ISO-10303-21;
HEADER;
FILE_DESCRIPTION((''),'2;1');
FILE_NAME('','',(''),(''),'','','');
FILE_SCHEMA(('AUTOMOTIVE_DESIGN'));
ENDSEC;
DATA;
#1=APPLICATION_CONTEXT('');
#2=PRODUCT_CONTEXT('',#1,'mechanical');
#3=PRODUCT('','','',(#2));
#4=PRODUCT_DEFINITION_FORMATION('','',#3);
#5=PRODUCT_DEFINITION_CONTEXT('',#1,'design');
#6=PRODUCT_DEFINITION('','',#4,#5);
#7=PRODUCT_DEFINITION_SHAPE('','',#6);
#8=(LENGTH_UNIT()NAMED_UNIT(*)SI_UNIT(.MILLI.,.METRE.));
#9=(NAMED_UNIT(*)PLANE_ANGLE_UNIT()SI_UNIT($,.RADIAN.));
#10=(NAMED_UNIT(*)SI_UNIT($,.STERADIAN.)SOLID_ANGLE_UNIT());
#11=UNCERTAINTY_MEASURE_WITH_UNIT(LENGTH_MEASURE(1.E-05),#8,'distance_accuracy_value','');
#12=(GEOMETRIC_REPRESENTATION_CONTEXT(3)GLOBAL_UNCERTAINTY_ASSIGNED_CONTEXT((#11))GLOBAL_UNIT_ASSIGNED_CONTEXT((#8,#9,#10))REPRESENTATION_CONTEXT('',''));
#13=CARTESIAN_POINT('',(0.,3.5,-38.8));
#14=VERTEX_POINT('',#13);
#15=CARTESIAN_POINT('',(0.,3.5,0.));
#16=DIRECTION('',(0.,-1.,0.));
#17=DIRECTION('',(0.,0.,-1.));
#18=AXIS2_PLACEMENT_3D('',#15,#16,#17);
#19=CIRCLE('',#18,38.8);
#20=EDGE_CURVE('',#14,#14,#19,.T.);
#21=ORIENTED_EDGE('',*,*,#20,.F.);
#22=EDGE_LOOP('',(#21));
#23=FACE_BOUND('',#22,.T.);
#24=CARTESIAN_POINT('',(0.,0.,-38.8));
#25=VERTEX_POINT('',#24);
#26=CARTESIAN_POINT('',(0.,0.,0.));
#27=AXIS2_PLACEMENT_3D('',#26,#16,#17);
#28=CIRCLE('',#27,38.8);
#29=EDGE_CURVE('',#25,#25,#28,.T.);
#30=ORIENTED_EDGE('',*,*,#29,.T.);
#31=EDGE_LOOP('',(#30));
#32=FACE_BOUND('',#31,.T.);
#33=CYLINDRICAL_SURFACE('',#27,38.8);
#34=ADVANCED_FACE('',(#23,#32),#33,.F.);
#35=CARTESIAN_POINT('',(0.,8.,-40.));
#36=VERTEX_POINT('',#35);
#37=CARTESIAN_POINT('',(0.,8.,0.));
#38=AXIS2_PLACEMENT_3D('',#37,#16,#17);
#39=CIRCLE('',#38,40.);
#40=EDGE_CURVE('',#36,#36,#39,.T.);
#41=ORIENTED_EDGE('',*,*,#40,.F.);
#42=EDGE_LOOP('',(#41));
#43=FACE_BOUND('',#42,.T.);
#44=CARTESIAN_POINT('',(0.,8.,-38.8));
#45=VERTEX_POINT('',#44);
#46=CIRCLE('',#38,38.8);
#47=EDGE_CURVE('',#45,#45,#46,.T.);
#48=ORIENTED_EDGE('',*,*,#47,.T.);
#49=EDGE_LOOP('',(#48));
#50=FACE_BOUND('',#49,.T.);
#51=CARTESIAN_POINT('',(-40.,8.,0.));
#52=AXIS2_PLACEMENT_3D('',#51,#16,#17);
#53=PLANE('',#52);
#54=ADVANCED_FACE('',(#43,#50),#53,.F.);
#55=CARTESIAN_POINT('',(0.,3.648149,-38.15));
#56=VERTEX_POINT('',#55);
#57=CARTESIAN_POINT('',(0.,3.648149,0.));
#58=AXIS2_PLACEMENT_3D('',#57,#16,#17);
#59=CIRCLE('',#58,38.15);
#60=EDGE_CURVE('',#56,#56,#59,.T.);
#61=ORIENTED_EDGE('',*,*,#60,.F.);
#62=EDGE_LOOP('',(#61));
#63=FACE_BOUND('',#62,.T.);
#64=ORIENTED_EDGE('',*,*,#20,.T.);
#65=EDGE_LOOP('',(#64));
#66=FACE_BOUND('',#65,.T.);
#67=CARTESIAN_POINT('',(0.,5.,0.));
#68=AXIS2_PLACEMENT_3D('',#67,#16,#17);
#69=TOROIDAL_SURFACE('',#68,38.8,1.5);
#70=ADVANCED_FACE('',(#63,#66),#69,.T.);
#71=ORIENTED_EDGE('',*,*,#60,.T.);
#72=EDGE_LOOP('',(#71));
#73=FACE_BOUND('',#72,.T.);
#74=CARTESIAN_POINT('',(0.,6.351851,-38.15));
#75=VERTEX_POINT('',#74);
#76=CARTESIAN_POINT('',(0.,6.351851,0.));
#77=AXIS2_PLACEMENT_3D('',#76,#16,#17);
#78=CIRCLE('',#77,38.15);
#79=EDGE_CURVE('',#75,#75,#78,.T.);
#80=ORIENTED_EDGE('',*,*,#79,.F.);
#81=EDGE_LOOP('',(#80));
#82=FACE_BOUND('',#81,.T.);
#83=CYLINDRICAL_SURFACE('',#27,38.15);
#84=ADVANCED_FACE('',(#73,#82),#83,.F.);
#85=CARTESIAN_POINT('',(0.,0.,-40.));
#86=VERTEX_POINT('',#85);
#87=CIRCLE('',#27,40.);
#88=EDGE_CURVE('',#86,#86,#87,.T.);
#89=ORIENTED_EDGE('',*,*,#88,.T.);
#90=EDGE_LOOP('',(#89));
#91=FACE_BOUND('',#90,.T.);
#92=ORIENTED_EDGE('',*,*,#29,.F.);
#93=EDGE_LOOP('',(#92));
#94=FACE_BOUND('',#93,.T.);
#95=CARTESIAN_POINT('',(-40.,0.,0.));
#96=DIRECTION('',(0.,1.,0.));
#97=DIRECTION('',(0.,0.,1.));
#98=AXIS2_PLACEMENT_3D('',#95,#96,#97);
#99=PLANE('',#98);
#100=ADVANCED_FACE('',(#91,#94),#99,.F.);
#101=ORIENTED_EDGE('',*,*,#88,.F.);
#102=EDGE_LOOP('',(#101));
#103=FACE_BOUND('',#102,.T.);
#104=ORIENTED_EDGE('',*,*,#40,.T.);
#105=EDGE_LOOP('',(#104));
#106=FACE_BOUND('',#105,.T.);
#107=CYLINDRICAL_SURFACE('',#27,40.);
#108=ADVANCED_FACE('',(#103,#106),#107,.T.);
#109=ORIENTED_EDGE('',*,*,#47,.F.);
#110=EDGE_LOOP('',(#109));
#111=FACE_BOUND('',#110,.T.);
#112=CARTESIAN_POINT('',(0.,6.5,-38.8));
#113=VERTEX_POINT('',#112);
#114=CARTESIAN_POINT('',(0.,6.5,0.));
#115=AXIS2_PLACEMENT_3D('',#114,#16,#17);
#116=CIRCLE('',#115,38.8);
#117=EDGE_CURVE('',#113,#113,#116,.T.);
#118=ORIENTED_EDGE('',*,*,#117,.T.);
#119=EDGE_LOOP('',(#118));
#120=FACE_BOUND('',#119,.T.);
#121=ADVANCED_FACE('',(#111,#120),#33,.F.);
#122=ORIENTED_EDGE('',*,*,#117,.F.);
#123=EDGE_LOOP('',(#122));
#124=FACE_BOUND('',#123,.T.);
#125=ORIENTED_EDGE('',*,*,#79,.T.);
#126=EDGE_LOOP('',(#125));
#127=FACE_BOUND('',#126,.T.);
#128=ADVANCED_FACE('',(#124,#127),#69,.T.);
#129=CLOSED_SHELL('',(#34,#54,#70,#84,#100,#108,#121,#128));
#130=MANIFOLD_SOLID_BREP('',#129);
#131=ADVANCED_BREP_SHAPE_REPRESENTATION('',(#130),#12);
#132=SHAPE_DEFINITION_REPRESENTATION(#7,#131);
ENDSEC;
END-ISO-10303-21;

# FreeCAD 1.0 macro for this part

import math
import FreeCAD as App
import Part
import Sketcher

V = App.Vector
Q = App.Units.Quantity

doc = App.newDocument("Part")
body = doc.addObject("PartDesign::Body", "Body")

# Sketch on XY plane
sketch1 = body.newObject("Sketcher::SketchObject", "Sketch")
sketch1.AttachmentSupport = (doc.getObject("XY_Plane"), [""])
sketch1.MapMode = "FlatFace"
sketch1.addGeometry([
    Part.LineSegment(V(-40, 8, 0), V(-40, 0, 0)),  # 0
    Part.LineSegment(V(-40, 0, 0), V(-38.8, 0, 0)),  # 1
    Part.LineSegment(V(-38.8, 0, 0), V(-38.8, 3.5, 0)),  # 2
    Part.ArcOfCircle(Part.Circle(V(-38.8, 5, 0), V(0, 0, 1), 1.5), math.radians(-90), math.radians(-64)),  # 3
    Part.LineSegment(V(-38.1, 3.6, 0), V(-38.1, 6.4, 0)),  # 4
    Part.ArcOfCircle(Part.Circle(V(-38.8, 5, 0), V(0, 0, 1), 1.5), math.radians(64), math.radians(90)),  # 5
    Part.LineSegment(V(-38.8, 6.5, 0), V(-38.8, 8, 0)),  # 6
    Part.LineSegment(V(-38.8, 8, 0), V(-40, 8, 0)),  # 7
], False)
sketch1.addConstraint([
    Sketcher.Constraint("Coincident", 0, 2, 1, 1),
    Sketcher.Constraint("Coincident", 1, 2, 2, 1),
    Sketcher.Constraint("Coincident", 2, 2, 3, 1),
    Sketcher.Constraint("Coincident", 3, 2, 4, 1),
    Sketcher.Constraint("Coincident", 4, 2, 5, 1),
    Sketcher.Constraint("Coincident", 5, 2, 6, 1),
    Sketcher.Constraint("Coincident", 6, 2, 7, 1),
    Sketcher.Constraint("Coincident", 7, 2, 0, 1),
    Sketcher.Constraint("Vertical", 0),
    Sketcher.Constraint("Horizontal", 1),
    Sketcher.Constraint("Vertical", 2),
    Sketcher.Constraint("Vertical", 4),
    Sketcher.Constraint("Vertical", 6),
    Sketcher.Constraint("Horizontal", 7),
    Sketcher.Constraint("Coincident", 5, 3, 3, 3),
    Sketcher.Constraint("Equal", 3, 5),
    Sketcher.Constraint("PointOnObject", 0, 2, -1),
    Sketcher.Constraint("Vertical", 5, 3, 1, 2),
    Sketcher.Constraint("Vertical", 2, 2, 5, 2),
    Sketcher.Constraint("Radius", 3, Q("1.5 mm")),
    Sketcher.Constraint("DistanceY", 0, 2, 0, 1, Q("8 mm")),
    Sketcher.Constraint("DistanceX", 1, 1, 1, 2, Q("1.2 mm")),
    Sketcher.Constraint("DistanceY", 2, 1, 2, 2, Q("3.5 mm")),
    Sketcher.Constraint("DistanceX", 0, 2, -1, 1, Q("40 mm")),
    Sketcher.Constraint("DistanceX", 3, 2, -1, 1, Q("38.15 mm")),
])
revolution = body.newObject("PartDesign::Revolution", "Revolution")
revolution.Profile = sketch1
revolution.ReferenceAxis = (sketch1, ["V_Axis"])
revolution.Angle = 360

doc.recompute()
